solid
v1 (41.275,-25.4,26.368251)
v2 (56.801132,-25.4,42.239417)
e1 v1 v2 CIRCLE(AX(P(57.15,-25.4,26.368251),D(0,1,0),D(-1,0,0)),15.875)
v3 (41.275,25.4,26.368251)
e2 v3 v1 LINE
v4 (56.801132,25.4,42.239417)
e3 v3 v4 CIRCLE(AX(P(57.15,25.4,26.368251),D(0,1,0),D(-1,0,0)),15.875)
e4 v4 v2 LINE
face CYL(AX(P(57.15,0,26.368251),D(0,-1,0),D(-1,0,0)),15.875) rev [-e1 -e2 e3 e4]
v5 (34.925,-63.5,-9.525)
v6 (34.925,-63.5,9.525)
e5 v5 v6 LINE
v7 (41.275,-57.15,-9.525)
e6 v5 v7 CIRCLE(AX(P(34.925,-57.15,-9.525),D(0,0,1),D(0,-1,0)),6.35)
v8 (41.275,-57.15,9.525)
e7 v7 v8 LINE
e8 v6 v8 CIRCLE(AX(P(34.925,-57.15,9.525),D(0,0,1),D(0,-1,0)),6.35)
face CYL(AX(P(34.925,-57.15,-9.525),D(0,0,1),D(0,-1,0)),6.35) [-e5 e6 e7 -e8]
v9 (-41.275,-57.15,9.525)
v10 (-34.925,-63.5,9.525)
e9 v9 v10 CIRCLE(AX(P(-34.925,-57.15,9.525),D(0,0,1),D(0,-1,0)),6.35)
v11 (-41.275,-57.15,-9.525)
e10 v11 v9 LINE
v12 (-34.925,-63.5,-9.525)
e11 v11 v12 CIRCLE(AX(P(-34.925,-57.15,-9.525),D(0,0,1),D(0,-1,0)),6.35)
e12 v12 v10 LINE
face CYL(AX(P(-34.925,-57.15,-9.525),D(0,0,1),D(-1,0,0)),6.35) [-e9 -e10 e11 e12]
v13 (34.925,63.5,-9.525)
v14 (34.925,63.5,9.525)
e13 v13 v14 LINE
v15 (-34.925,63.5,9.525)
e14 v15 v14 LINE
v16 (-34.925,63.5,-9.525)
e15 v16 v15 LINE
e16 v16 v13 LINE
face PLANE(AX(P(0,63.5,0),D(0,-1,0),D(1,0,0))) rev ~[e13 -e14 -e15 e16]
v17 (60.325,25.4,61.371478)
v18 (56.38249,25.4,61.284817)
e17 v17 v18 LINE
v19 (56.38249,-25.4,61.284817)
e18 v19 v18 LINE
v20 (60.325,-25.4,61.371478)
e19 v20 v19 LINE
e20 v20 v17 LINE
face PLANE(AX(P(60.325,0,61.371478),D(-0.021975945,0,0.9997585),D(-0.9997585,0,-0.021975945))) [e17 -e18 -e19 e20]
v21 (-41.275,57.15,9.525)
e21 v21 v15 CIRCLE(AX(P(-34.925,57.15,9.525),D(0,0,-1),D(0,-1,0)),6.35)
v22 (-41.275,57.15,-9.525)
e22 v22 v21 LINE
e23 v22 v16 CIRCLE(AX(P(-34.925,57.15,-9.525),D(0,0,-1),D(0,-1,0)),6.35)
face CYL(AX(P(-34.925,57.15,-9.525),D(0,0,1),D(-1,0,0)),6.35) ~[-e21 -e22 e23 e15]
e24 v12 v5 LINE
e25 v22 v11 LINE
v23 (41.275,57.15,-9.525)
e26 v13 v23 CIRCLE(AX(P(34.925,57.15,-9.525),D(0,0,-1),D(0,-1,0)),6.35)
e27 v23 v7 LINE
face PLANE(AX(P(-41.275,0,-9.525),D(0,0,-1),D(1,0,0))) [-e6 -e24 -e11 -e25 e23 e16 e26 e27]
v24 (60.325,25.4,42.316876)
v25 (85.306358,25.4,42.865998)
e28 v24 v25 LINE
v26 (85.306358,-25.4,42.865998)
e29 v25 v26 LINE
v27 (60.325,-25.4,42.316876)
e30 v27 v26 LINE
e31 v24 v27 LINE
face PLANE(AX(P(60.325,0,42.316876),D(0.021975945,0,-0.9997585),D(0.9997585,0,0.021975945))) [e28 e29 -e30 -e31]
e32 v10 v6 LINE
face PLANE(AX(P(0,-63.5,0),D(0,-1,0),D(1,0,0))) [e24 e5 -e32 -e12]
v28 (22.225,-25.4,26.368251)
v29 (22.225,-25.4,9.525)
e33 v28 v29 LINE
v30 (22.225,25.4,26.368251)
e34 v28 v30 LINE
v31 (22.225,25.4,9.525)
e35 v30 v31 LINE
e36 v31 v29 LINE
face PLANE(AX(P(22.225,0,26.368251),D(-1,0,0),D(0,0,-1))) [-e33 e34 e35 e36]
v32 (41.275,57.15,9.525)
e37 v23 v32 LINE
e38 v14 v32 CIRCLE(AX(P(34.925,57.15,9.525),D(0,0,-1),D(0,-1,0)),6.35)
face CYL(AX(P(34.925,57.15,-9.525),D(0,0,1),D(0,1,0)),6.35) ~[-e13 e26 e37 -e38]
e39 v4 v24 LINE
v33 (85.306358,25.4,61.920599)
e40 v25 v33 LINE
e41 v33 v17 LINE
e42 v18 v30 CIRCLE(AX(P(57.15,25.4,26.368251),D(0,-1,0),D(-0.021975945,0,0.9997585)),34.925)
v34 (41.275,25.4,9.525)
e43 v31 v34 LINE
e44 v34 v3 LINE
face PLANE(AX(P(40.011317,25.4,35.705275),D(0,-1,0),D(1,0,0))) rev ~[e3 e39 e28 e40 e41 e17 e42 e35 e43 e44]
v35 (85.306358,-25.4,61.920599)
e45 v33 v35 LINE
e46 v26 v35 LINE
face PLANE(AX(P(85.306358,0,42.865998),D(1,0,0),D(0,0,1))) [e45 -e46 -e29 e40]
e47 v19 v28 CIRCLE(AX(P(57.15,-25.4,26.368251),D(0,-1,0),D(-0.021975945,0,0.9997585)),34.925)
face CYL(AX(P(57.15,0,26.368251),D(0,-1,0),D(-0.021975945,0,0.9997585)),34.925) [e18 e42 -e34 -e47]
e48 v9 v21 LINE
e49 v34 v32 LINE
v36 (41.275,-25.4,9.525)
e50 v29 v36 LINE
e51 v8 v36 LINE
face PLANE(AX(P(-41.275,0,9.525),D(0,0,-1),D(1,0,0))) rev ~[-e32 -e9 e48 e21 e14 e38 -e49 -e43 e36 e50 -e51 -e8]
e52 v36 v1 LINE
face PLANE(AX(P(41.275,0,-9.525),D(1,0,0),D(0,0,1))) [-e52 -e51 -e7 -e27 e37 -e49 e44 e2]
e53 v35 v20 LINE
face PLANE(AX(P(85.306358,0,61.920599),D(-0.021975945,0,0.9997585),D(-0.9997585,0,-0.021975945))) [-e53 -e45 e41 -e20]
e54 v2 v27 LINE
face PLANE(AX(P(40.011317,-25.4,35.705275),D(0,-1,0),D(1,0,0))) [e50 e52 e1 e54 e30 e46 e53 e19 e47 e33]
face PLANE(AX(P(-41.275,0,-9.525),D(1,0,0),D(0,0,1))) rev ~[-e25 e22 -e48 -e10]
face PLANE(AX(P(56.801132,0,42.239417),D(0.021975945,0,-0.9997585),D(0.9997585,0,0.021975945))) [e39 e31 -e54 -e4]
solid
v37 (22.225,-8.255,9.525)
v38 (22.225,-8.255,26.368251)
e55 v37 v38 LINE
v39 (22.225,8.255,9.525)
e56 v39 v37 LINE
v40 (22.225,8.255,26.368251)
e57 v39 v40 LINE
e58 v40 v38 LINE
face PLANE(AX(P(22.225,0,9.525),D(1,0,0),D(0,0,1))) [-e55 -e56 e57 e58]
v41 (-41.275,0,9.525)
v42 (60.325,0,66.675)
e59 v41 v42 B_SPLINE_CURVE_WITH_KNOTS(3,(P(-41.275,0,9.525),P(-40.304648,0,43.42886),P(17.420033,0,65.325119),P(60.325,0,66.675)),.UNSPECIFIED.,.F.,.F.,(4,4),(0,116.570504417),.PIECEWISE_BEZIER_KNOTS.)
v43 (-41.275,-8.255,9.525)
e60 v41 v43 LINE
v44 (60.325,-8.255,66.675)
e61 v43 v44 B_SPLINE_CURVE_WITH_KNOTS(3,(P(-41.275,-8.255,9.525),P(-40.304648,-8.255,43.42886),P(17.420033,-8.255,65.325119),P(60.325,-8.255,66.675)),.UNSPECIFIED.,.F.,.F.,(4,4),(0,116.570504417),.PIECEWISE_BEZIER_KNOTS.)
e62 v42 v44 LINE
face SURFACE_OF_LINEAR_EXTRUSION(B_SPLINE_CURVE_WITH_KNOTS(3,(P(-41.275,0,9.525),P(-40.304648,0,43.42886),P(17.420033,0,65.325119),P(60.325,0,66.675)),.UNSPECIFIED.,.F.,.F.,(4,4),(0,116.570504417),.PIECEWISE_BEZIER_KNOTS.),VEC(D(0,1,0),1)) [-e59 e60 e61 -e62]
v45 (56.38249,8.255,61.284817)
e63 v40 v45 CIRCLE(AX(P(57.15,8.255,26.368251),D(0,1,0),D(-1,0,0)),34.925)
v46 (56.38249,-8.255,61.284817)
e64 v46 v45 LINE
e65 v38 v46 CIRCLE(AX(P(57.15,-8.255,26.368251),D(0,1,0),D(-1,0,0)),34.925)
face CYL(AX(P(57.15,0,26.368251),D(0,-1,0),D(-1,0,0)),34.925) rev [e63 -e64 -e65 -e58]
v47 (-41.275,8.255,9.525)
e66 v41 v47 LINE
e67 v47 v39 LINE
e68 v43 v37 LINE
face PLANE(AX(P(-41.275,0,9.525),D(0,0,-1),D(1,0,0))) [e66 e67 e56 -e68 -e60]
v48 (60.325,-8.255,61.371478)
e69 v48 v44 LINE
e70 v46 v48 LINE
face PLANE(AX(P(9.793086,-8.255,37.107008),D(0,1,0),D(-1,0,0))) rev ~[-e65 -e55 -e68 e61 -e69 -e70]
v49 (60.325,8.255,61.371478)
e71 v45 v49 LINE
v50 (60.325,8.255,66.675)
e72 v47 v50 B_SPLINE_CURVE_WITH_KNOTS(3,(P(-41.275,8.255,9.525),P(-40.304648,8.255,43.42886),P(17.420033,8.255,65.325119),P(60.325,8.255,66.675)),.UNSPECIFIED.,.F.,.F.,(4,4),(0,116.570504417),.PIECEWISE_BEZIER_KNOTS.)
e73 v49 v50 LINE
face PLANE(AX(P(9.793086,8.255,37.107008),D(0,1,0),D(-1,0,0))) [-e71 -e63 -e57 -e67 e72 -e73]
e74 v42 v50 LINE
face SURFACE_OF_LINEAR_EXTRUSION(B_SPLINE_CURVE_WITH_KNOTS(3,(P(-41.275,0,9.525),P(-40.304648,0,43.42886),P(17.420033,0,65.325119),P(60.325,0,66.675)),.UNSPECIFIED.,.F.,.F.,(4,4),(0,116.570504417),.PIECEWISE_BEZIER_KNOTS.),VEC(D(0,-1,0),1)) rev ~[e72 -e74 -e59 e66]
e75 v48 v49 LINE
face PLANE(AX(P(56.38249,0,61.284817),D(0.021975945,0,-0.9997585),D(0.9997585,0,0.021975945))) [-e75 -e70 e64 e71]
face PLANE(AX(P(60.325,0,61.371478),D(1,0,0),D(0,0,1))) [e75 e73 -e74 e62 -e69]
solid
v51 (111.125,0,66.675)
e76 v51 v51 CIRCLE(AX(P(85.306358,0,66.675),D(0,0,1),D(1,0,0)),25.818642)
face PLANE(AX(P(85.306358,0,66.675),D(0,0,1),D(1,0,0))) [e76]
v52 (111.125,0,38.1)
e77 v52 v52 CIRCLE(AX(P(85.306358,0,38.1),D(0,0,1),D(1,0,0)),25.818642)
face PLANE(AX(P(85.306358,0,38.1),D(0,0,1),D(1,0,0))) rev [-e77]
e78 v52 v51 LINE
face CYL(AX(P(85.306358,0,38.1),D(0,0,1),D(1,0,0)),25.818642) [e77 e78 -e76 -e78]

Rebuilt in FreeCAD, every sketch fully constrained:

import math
import FreeCAD as App
import Part
import Sketcher
Q = App.Units.Quantity


def edges_at(feature, points):
    """Names of the edges that pass closest to the given points."""
    edges = feature.Shape.Edges
    near = lambda p: min(range(len(edges)), key=lambda i: edges[i].distToShape(Part.Vertex(*p))[0])
    return sorted({f"Edge{near(p) + 1}" for p in points})

doc = App.newDocument("Part")
params = doc.addObject("Spreadsheet::Sheet", "Params")
for row, (alias, value) in enumerate([
    ("sketch1_width", "3.25 in"),
    ("sketch1_height", "0.75 in"),
    ("pad1_length", "5 in"),
    ("sketch2_radius", "0.625 in"),
    ("sketch2_radius2", "1.375 in"),
    ("pad2_length", "2 in"),
    ("fillet_radius", "0.25 in"),
    ("sketch3_width", "2.5 in"),
    ("sketch3_radius", "1.375 in"),
    ("pad3_length", "0.65 in"),
    ("sketch4_height", "1.125 in"),
    ("revolution_angle", "360 deg"),
], start=1):
    params.set(f"A{row}", alias)
    params.set(f"B{row}", "=" + value)
    params.setAlias(f"B{row}", alias)

body = doc.addObject("PartDesign::Body", "Body")

# Sketch on XZ plane
sketch1 = body.newObject("Sketcher::SketchObject", "Sketch")
sketch1.AttachmentSupport = (doc.getObject("XZ_Plane"), [""])
sketch1.MapMode = "FlatFace"
sketch1.addGeometry([
    Part.LineSegment(App.Vector(-41.275, 9.525, 0), App.Vector(-41.275, -9.525, 0)),
    Part.LineSegment(App.Vector(-41.275, -9.525, 0), App.Vector(41.275, -9.525, 0)),
    Part.LineSegment(App.Vector(41.275, -9.525, 0), App.Vector(41.275, 9.525, 0)),
    Part.LineSegment(App.Vector(41.275, 9.525, 0), App.Vector(-41.275, 9.525, 0)),
], False)
sketch1.addConstraint([
    Sketcher.Constraint("Coincident", 0, 2, 1, 1),
    Sketcher.Constraint("Coincident", 1, 2, 2, 1),
    Sketcher.Constraint("Coincident", 2, 2, 3, 1),
    Sketcher.Constraint("Coincident", 3, 2, 0, 1),
    Sketcher.Constraint("Vertical", 0),
    Sketcher.Constraint("Horizontal", 1),
    Sketcher.Constraint("Vertical", 2),
    Sketcher.Constraint("Horizontal", 3),
    Sketcher.Constraint("Symmetric", 0, 2, 2, 2, -1, 1),
    Sketcher.Constraint("DistanceX", 1, 1, 1, 2, Q("3.25 in")),
    Sketcher.Constraint("DistanceY", 0, 2, 0, 1, Q("0.75 in")),
])
sketch1.setExpression("Constraints[9]", "Params.sketch1_width")
sketch1.setExpression("Constraints[10]", "Params.sketch1_height")
pad1 = body.newObject("PartDesign::Pad", "Pad")
pad1.Profile = sketch1
pad1.setExpression("Length", "Params.pad1_length")
pad1.Midplane = True

# Sketch on XZ plane
sketch2 = body.newObject("Sketcher::SketchObject", "Sketch001")
sketch2.AttachmentSupport = (doc.getObject("XZ_Plane"), [""])
sketch2.MapMode = "FlatFace"
sketch2.addGeometry([
    Part.LineSegment(App.Vector(22.225, 26.368251, 0), App.Vector(22.225, 9.525, 0)),  # 0
    Part.LineSegment(App.Vector(22.225, 9.525, 0), App.Vector(41.275, 9.525, 0)),  # 1
    Part.LineSegment(App.Vector(41.275, 9.525, 0), App.Vector(41.275, 26.368251, 0)),  # 2
    Part.ArcOfCircle(Part.Circle(App.Vector(57.15, 26.368251, 0), App.Vector(0, 0, 1), 15.875), math.radians(91.25923), math.radians(180)),  # 3
    Part.LineSegment(App.Vector(56.801132, 42.239417, 0), App.Vector(60.325, 42.316876, 0)),  # 4
    Part.LineSegment(App.Vector(60.325, 42.316876, 0), App.Vector(85.306358, 42.865998, 0)),  # 5
    Part.LineSegment(App.Vector(85.306358, 42.865998, 0), App.Vector(85.306358, 61.920599, 0)),  # 6
    Part.LineSegment(App.Vector(85.306358, 61.920599, 0), App.Vector(60.325, 61.371478, 0)),  # 7
    Part.LineSegment(App.Vector(60.325, 61.371478, 0), App.Vector(56.38249, 61.284817, 0)),  # 8
    Part.ArcOfCircle(Part.Circle(App.Vector(57.15, 26.368251, 0), App.Vector(0, 0, 1), 34.925), math.radians(91.25923), math.radians(180)),  # 9
], False)
sketch2.addConstraint([
    Sketcher.Constraint("Coincident", 0, 2, 1, 1),
    Sketcher.Constraint("Coincident", 1, 2, 2, 1),
    Sketcher.Constraint("Coincident", 2, 2, 3, 2),
    Sketcher.Constraint("Coincident", 3, 1, 4, 1),
    Sketcher.Constraint("Coincident", 4, 2, 5, 1),
    Sketcher.Constraint("Coincident", 5, 2, 6, 1),
    Sketcher.Constraint("Coincident", 6, 2, 7, 1),
    Sketcher.Constraint("Coincident", 7, 2, 8, 1),
    Sketcher.Constraint("Coincident", 8, 2, 9, 1),
    Sketcher.Constraint("Coincident", 9, 2, 0, 1),
    Sketcher.Constraint("Vertical", 0),
    Sketcher.Constraint("Horizontal", 1),
    Sketcher.Constraint("Vertical", 2),
    Sketcher.Constraint("Vertical", 6),
    Sketcher.Constraint("Coincident", 9, 3, 3, 3),
    Sketcher.Constraint("Radius", 3, Q("0.625 in")),
    Sketcher.Constraint("Radius", 9, Q("1.375 in")),
    Sketcher.Constraint("DistanceX", -1, 1, 3, 3, Q("2.25 in")),
    Sketcher.Constraint("DistanceX", 2, 2, 4, 2, Q("0.75 in")),
    Sketcher.Constraint("DistanceY", -1, 1, 0, 2, Q("0.375 in")),
    Sketcher.Constraint("DistanceX", -1, 1, 7, 2, Q("2.375 in")),
    Sketcher.Constraint("DistanceY", 6, 1, 6, 2, 19.054602),
    Sketcher.Constraint("DistanceY", -1, 1, 7, 2, Q("2.4161999 in")),
    Sketcher.Constraint("DistanceY", 4, 2, 6, 2, Q("0.7718001 in")),
    Sketcher.Constraint("DistanceY", 0, 2, 0, 1, 16.843251),
    Sketcher.Constraint("DistanceY", 2, 1, 2, 2, 16.843251),
    Sketcher.Constraint("DistanceY", -1, 1, 6, 2, 61.920599),
    Sketcher.Constraint("DistanceY", 3, 1, 8, 2, 19.045399),
    Sketcher.Constraint("Distance", 4, 3.524719),
    Sketcher.Constraint("DistanceY", -1, 1, 3, 3, 26.368251),
    Sketcher.Constraint("DistanceX", -1, 1, 5, 2, 85.306358),
])
sketch2.setExpression("Constraints[15]", "Params.sketch2_radius")
sketch2.setExpression("Constraints[16]", "Params.sketch2_radius2")
pad2 = body.newObject("PartDesign::Pad", "Pad001")
pad2.Profile = sketch2
pad2.setExpression("Length", "Params.pad2_length")
pad2.Midplane = True
doc.recompute()

fillet = body.newObject("PartDesign::Fillet", "Fillet")
fillet.Base = (pad2, edges_at(pad2, [
    (-41.275, -63.5, 0),
    (41.275, -63.5, 0),
    (41.275, 63.5, 0),
    (-41.275, 63.5, 0),
]))
fillet.setExpression("Radius", "Params.fillet_radius")
body2 = doc.addObject("PartDesign::Body", "Body001")

# Sketch on XZ plane
sketch3 = body2.newObject("Sketcher::SketchObject", "Sketch002")
sketch3.AttachmentSupport = (doc.getObject("XZ_Plane001"), [""])
sketch3.MapMode = "FlatFace"
sketch3.addGeometry([
    Part.BSplineCurve([App.Vector(-41.275, 9.525, 0), App.Vector(-40.304648, 43.42886, 0), App.Vector(17.420033, 65.325119, 0), App.Vector(60.325, 66.675, 0)], [4, 4], [0, 116.570504417], False, 3, [1, 1, 1, 1], False),  # 0
    Part.LineSegment(App.Vector(-41.275, 9.525, 0), App.Vector(22.225, 9.525, 0)),  # 1
    Part.LineSegment(App.Vector(22.225, 9.525, 0), App.Vector(22.225, 26.368251, 0)),  # 2
    Part.ArcOfCircle(Part.Circle(App.Vector(57.15, 26.368251, 0), App.Vector(0, 0, 1), 34.925), math.radians(91.25923), math.radians(180)),  # 3
    Part.LineSegment(App.Vector(56.38249, 61.284817, 0), App.Vector(60.325, 61.371478, 0)),  # 4
    Part.LineSegment(App.Vector(60.325, 61.371478, 0), App.Vector(60.325, 66.675, 0)),  # 5
], False)
sketch3.addConstraint([
    Sketcher.Constraint("Block", 0),
    Sketcher.Constraint("Coincident", 0, 1, 1, 1),
    Sketcher.Constraint("Coincident", 1, 2, 2, 1),
    Sketcher.Constraint("Coincident", 2, 2, 3, 2),
    Sketcher.Constraint("Coincident", 3, 1, 4, 1),
    Sketcher.Constraint("Coincident", 4, 2, 5, 1),
    Sketcher.Constraint("Coincident", 5, 2, 0, 2),
    Sketcher.Constraint("Horizontal", 1),
    Sketcher.Constraint("Vertical", 2),
    Sketcher.Constraint("Vertical", 5),
    Sketcher.Constraint("DistanceX", 1, 1, 1, 2, Q("2.5 in")),
    Sketcher.Constraint("Radius", 3, Q("1.375 in")),
    Sketcher.Constraint("DistanceY", 5, 1, 5, 2, Q("0.2088001 in")),
    Sketcher.Constraint("DistanceY", 2, 1, 2, 2, 16.843251),
    Sketcher.Constraint("DistanceY", -1, 1, 3, 3, 26.368251),
    Sketcher.Constraint("DistanceX", -1, 1, 3, 1, 56.38249),
])
sketch3.setExpression("Constraints[10]", "Params.sketch3_width")
sketch3.setExpression("Constraints[11]", "Params.sketch3_radius")
pad3 = body2.newObject("PartDesign::Pad", "Pad002")
pad3.Profile = sketch3
pad3.setExpression("Length", "Params.pad3_length")
pad3.Midplane = True
body3 = doc.addObject("PartDesign::Body", "Body002")

# Sketch on XZ plane
sketch4 = body3.newObject("Sketcher::SketchObject", "Sketch003")
sketch4.AttachmentSupport = (doc.getObject("XZ_Plane002"), [""])
sketch4.MapMode = "FlatFace"
sketch4.addGeometry([
    Part.LineSegment(App.Vector(111.125, 66.675, 0), App.Vector(85.306358, 66.675, 0)),
    Part.LineSegment(App.Vector(85.306358, 66.675, 0), App.Vector(85.306358, 38.1, 0)),
    Part.LineSegment(App.Vector(85.306358, 38.1, 0), App.Vector(111.125, 38.1, 0)),
    Part.LineSegment(App.Vector(111.125, 38.1, 0), App.Vector(111.125, 66.675, 0)),
], False)
sketch4.addGeometry(Part.LineSegment(App.Vector(85.306358, 38.1, 0), App.Vector(85.306358, 66.675, 0)), True)  # axis
sketch4.addConstraint([
    Sketcher.Constraint("Coincident", 0, 2, 1, 1),
    Sketcher.Constraint("Coincident", 1, 2, 2, 1),
    Sketcher.Constraint("Coincident", 2, 2, 3, 1),
    Sketcher.Constraint("Coincident", 3, 2, 0, 1),
    Sketcher.Constraint("Horizontal", 0),
    Sketcher.Constraint("Vertical", 1),
    Sketcher.Constraint("Horizontal", 2),
    Sketcher.Constraint("Vertical", 3),
    Sketcher.Constraint("Vertical", 4),
    Sketcher.Constraint("Coincident", 4, 1, 1, 2),
    Sketcher.Constraint("Horizontal", 3, 2, 4, 2),
    Sketcher.Constraint("DistanceY", -1, 1, 1, 2, Q("1.5 in")),
    Sketcher.Constraint("DistanceY", 1, 2, 1, 1, Q("1.125 in")),
    Sketcher.Constraint("DistanceX", -1, 1, 2, 2, Q("4.375 in")),
    Sketcher.Constraint("DistanceX", 0, 2, 0, 1, 25.818642),
])
sketch4.setExpression("Constraints[12]", "Params.sketch4_height")
revolution = body3.newObject("PartDesign::Revolution", "Revolution")
revolution.Profile = sketch4
revolution.ReferenceAxis = (sketch4, ["Axis0"])
revolution.setExpression("Angle", "Params.revolution_angle")

doc.recompute()
